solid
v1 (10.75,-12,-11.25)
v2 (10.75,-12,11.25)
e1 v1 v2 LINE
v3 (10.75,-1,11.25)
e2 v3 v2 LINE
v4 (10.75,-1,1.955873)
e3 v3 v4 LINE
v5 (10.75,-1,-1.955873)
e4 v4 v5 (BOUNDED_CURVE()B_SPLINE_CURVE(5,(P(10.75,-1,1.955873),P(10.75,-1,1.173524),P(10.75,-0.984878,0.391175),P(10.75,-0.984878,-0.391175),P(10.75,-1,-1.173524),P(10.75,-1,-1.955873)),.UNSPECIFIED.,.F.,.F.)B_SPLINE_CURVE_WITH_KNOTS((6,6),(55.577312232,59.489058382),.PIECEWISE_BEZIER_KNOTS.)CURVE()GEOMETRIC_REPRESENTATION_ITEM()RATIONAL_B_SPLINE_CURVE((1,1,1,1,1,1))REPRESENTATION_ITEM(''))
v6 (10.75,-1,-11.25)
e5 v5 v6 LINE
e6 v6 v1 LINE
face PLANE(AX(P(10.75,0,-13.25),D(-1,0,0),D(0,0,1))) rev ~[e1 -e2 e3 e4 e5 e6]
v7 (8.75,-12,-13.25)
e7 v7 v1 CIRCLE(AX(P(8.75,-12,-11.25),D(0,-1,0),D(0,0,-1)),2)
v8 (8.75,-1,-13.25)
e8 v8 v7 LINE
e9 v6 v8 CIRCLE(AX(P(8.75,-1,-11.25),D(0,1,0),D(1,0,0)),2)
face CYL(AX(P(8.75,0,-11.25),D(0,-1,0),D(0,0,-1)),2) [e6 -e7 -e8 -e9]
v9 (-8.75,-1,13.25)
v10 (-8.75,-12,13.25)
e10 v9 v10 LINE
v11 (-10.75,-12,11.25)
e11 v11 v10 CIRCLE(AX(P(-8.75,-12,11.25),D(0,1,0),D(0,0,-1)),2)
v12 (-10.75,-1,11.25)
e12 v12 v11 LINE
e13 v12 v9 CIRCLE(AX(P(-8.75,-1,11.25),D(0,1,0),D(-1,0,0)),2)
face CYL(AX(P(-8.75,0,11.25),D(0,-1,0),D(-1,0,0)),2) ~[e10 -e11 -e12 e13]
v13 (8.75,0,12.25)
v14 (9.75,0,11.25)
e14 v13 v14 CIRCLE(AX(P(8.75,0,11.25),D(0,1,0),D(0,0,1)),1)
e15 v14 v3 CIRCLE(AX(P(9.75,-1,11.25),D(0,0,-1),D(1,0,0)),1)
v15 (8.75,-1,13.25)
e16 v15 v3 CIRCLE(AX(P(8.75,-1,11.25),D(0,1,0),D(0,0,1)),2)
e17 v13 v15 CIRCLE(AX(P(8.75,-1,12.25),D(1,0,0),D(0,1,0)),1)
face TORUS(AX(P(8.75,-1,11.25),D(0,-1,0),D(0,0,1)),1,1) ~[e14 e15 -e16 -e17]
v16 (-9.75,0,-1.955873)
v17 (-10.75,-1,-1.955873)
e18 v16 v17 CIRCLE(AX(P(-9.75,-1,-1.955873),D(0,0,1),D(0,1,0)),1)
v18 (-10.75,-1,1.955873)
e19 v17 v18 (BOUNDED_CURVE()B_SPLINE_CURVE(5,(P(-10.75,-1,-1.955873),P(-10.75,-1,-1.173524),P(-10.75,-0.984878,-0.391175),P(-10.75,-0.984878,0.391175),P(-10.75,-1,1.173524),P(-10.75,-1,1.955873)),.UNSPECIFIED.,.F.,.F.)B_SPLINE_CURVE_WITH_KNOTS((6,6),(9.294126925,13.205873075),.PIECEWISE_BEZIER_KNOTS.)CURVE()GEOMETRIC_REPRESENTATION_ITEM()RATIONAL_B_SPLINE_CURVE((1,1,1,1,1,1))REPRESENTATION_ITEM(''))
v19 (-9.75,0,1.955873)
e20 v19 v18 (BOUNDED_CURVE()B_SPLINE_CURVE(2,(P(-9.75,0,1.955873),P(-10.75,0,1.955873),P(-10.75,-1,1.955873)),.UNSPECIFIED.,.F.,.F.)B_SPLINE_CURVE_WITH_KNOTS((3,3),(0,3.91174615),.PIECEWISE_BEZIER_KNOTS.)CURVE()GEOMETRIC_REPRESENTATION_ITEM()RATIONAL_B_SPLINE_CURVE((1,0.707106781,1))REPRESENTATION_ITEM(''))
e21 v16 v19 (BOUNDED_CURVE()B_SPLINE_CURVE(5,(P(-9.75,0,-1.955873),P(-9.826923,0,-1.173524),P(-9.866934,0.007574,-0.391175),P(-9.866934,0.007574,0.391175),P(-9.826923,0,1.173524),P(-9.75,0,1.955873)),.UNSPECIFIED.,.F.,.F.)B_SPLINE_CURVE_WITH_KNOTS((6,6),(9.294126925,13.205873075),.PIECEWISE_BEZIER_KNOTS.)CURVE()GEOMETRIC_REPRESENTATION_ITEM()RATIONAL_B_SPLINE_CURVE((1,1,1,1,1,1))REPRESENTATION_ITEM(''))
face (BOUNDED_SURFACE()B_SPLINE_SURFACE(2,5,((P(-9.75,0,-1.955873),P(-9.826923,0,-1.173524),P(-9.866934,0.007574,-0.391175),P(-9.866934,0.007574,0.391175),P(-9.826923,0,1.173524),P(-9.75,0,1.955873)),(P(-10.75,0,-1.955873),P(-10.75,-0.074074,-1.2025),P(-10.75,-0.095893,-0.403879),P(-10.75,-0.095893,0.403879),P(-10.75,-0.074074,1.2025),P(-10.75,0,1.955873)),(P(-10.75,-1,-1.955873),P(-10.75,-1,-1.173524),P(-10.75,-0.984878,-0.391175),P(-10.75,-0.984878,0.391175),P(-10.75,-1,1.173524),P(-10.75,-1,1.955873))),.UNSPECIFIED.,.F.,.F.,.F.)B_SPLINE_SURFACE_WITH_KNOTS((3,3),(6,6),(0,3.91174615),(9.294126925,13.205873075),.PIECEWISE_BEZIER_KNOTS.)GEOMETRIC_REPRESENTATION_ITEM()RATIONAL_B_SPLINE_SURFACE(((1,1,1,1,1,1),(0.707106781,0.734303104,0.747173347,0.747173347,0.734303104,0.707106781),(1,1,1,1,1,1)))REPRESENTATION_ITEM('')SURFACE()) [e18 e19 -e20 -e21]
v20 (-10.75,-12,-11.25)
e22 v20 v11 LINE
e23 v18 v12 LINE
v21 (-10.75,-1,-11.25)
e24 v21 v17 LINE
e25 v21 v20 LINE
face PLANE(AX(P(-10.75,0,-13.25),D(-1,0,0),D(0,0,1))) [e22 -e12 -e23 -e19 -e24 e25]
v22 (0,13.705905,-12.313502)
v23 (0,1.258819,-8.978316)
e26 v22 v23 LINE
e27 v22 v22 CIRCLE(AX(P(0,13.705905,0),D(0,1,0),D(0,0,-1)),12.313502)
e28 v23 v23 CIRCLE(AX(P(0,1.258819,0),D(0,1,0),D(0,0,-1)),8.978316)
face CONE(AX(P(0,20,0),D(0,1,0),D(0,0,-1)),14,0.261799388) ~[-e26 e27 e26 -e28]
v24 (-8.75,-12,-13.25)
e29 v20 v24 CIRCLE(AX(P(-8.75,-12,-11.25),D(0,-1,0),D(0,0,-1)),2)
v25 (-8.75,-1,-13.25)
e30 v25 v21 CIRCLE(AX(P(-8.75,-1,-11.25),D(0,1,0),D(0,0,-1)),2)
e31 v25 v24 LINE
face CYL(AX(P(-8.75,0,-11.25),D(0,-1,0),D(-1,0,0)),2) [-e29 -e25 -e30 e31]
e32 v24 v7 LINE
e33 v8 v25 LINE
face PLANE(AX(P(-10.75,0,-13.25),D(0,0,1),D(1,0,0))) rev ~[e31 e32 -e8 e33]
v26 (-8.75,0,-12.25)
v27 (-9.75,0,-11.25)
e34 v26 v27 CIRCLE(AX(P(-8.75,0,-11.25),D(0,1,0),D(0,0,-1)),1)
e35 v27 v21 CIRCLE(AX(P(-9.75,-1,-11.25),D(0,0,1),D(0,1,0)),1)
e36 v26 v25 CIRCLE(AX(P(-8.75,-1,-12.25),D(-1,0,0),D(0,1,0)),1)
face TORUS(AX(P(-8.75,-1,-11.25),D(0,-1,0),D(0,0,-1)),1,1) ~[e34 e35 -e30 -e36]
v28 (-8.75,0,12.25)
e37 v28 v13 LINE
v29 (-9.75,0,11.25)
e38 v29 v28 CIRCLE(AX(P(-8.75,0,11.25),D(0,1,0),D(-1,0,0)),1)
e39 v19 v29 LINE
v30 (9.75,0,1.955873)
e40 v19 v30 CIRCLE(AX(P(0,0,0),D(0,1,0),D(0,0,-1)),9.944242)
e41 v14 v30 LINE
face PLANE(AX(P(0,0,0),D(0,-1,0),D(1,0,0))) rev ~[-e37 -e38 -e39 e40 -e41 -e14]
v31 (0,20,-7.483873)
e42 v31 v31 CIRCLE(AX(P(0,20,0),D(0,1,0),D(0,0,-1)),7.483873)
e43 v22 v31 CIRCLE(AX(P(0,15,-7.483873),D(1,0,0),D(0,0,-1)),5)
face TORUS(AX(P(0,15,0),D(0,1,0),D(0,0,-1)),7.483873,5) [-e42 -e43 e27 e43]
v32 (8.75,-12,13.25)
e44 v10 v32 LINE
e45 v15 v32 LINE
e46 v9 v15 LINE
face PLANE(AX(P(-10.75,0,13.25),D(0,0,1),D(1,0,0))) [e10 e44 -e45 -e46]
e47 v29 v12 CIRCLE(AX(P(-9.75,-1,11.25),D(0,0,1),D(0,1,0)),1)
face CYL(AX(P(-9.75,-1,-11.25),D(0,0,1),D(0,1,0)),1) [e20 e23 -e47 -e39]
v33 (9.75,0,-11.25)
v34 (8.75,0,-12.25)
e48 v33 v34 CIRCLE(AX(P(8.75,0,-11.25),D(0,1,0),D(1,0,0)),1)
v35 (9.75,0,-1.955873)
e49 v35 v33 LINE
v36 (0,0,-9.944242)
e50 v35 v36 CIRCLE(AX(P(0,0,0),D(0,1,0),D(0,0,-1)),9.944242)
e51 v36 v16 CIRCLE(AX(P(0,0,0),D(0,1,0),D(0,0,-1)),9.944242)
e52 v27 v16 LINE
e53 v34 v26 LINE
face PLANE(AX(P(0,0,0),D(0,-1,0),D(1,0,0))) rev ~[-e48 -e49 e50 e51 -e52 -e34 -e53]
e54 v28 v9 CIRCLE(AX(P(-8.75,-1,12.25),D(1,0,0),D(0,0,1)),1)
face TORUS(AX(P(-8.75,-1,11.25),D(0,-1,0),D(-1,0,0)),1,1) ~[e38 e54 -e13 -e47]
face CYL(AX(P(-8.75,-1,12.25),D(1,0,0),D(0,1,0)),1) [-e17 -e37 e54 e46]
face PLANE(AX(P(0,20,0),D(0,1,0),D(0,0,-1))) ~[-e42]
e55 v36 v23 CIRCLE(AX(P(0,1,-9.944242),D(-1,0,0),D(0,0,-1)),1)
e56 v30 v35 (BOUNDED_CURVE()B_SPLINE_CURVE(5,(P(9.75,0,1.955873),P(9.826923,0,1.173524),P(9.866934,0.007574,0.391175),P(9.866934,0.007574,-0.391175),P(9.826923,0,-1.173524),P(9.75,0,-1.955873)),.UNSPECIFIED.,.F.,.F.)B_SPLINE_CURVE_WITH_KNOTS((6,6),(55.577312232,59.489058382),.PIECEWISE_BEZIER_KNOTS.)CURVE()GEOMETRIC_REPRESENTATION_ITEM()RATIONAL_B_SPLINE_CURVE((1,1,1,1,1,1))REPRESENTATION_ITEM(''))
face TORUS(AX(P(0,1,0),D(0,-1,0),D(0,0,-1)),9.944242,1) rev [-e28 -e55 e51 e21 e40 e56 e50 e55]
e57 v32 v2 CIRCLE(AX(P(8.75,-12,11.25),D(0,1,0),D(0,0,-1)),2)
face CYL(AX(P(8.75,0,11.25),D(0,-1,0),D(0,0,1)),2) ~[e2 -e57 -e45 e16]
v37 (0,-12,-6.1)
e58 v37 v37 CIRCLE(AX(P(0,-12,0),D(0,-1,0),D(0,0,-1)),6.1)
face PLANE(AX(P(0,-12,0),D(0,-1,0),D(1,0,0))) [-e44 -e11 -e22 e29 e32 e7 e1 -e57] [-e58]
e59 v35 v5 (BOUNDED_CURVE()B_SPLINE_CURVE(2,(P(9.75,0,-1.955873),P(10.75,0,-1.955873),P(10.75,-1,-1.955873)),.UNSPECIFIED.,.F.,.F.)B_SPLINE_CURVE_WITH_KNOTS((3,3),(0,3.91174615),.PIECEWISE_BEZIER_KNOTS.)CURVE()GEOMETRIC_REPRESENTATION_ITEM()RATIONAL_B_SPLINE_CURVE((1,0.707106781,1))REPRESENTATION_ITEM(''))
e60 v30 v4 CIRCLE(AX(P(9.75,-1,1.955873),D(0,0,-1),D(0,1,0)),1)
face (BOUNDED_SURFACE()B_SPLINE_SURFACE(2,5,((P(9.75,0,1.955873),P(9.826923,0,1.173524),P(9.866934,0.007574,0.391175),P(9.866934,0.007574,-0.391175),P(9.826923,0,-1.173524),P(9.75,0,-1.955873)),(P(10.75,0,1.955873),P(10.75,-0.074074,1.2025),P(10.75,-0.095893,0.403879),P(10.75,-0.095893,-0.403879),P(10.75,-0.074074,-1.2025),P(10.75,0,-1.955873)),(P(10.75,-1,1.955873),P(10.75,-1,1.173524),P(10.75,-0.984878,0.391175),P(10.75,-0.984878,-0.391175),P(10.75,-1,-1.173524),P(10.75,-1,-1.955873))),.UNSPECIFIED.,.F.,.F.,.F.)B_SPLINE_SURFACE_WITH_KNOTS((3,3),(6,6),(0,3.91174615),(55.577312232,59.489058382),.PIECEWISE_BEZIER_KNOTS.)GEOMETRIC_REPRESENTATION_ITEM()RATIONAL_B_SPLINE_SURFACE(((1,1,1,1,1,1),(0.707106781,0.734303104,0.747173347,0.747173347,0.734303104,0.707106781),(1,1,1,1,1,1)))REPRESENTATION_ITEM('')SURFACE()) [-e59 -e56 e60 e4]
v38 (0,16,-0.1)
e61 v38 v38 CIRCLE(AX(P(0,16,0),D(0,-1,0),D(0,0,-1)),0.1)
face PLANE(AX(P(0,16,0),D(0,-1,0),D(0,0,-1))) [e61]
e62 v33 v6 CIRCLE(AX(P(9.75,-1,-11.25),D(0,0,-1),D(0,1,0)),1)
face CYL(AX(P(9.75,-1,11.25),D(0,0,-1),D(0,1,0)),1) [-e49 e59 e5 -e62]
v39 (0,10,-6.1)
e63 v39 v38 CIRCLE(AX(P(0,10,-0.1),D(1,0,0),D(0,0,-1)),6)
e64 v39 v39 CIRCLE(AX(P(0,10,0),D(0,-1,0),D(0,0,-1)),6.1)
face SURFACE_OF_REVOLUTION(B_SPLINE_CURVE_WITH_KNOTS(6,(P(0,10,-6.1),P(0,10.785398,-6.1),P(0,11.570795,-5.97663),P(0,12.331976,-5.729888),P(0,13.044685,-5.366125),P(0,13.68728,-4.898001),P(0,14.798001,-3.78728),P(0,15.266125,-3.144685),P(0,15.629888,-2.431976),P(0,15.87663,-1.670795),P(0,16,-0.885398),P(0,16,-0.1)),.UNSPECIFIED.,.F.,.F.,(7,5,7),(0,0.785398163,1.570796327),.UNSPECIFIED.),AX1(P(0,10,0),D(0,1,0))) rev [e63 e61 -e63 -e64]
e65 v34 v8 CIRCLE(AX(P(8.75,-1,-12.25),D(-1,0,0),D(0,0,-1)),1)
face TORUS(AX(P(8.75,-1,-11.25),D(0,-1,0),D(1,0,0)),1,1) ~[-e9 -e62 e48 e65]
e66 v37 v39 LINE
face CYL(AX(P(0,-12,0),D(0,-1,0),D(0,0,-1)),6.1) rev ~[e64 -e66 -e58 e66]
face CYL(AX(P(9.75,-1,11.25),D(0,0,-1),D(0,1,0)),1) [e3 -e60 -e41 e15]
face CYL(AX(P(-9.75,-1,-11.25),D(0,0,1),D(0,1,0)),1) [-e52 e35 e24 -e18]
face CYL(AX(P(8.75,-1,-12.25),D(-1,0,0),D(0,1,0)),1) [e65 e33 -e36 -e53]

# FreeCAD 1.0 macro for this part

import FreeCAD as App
import Part
import Sketcher

V = App.Vector
Q = App.Units.Quantity


def edges_at(feature, points):
    """Names of the edges that pass closest to the given points."""
    edges = feature.Shape.Edges
    near = lambda p: min(range(len(edges)), key=lambda i: edges[i].distToShape(Part.Vertex(*p))[0])
    return sorted({f"Edge{near(p) + 1}" for p in points})


def add_polygon(sketch, points):
    """Adds a closed chain of lines whose ends are joined by coincident constraints."""
    first, n = sketch.GeometryCount, len(points)
    for a, b in zip(points, points[1:] + points[:1]):
        sketch.addGeometry(Part.LineSegment(App.Vector(*a, 0), App.Vector(*b, 0)), False)
    for i in range(n):
        sketch.addConstraint(Sketcher.Constraint("Coincident", first + i, 2, first + (i + 1) % n, 1))

doc = App.newDocument("Part")
params = doc.addObject("Spreadsheet::Sheet", "Params")
for row, (alias, value) in enumerate([
    ("sketch1_width", "14 mm"),
    ("sketch1_height", "20 mm"),
    ("revolution_angle", "360 deg"),
    ("sketch2_width", "21.5 mm"),
    ("sketch2_height", "26.5 mm"),
    ("pad1_length", "12 mm"),
    ("fillet_radius", "5 mm"),
    ("fillet2_radius", "2 mm"),
    ("fillet3_radius", "1 mm"),
    ("fillet4_radius", "1 mm"),
    ("sketch3_diameter", "12.2 mm"),
    ("pocket1_length", "28 mm"),
    ("fillet5_radius", "6 mm"),
], start=1):
    params.set(f"A{row}", alias)
    params.set(f"B{row}", "=" + value)
    params.setAlias(f"B{row}", alias)

body = doc.addObject("PartDesign::Body", "Body")

sketch1 = body.newObject("Sketcher::SketchObject", "Sketch")
sketch1.AttachmentSupport = (doc.getObject("XY_Plane"), [""])
sketch1.MapMode = "FlatFace"
add_polygon(sketch1, [(14, 20), (0, 20), (0, 0), (9, 0)])
sketch1.addConstraint(Sketcher.Constraint("Horizontal", 0))
sketch1.addConstraint(Sketcher.Constraint("Vertical", 1))
sketch1.addConstraint(Sketcher.Constraint("Horizontal", 2))
sketch1.addConstraint(Sketcher.Constraint("Coincident", 1, 2, -1, 1))
sketch1.addConstraint(Sketcher.Constraint("DistanceX", 0, 2, 0, 1, 14.0))
sketch1.addConstraint(Sketcher.Constraint("DistanceY", 1, 2, 1, 1, 20.0))
sketch1.addConstraint(Sketcher.Constraint("Angle", 3, Q("75 deg")))
sketch1.setExpression("Constraints[8]", "Params.sketch1_width")
sketch1.setExpression("Constraints[9]", "Params.sketch1_height")
revolution = body.newObject("PartDesign::Revolution", "Revolution")
revolution.Profile = sketch1
revolution.ReferenceAxis = (sketch1, ["V_Axis"])
revolution.setExpression("Angle", "Params.revolution_angle")

sketch2 = body.newObject("Sketcher::SketchObject", "Sketch001")
sketch2.AttachmentSupport = (doc.getObject("XZ_Plane"), [""])
sketch2.MapMode = "FlatFace"
add_polygon(sketch2, [(-11, 13), (-11, -13), (11, -13), (11, 13)])
sketch2.addConstraint(Sketcher.Constraint("Vertical", 0))
sketch2.addConstraint(Sketcher.Constraint("Horizontal", 1))
sketch2.addConstraint(Sketcher.Constraint("Vertical", 2))
sketch2.addConstraint(Sketcher.Constraint("Horizontal", 3))
sketch2.addConstraint(Sketcher.Constraint("Symmetric", 0, 2, 2, 2, -1, 1))
sketch2.addConstraint(Sketcher.Constraint("DistanceX", 1, 1, 1, 2, 21.5))
sketch2.addConstraint(Sketcher.Constraint("DistanceY", 0, 2, 0, 1, 26.5))
sketch2.setExpression("Constraints[9]", "Params.sketch2_width")
sketch2.setExpression("Constraints[10]", "Params.sketch2_height")
pad1 = body.newObject("PartDesign::Pad", "Pad")
pad1.Profile = sketch2
pad1.setExpression("Length", "Params.pad1_length")
doc.recompute()

fillet = body.newObject("PartDesign::Fillet", "Fillet")
fillet.Base = (pad1, edges_at(pad1, [(0, 20, 14)]))
fillet.setExpression("Radius", "Params.fillet_radius")
doc.recompute()

fillet2 = body.newObject("PartDesign::Fillet", "Fillet001")
fillet2.Base = (fillet, edges_at(fillet, [
    (10.75, -6, 13.25),
    (-10.75, -6, 13.25),
    (-10.75, -6, -13.25),
    (10.75, -6, -13.25),
]))
fillet2.setExpression("Radius", "Params.fillet2_radius")
doc.recompute()

fillet3 = body.newObject("PartDesign::Fillet", "Fillet002")
fillet3.Base = (fillet2, edges_at(fillet2, [(0, 0, 8.641)]))
fillet3.setExpression("Radius", "Params.fillet3_radius")
doc.recompute()

fillet4 = body.newObject("PartDesign::Fillet", "Fillet003")
fillet4.Base = (fillet3, edges_at(fillet3, [
    (-10.75, 0, 0),
    (10.75, 0, 0),
    (0, 0, -13.25),
    (0, 0, 13.25),
    (10.164, 0, -12.664),
    (-10.164, 0, -12.664),
    (10.164, 0, 12.664),
    (-10.164, 0, 12.664),
]))
fillet4.setExpression("Radius", "Params.fillet4_radius")

sketch3 = body.newObject("Sketcher::SketchObject", "Sketch002")
sketch3.AttachmentSupport = (doc.getObject("XZ_Plane"), [""])
sketch3.MapMode = "FlatFace"
sketch3.AttachmentOffset = App.Placement(V(0, 0, 12), App.Rotation())
sketch3.addGeometry(Part.Circle(V(0, 0, 0), V(0, 0, 1), 6), False)
sketch3.addConstraint(Sketcher.Constraint("Coincident", 0, 3, -1, 1))
sketch3.addConstraint(Sketcher.Constraint("Diameter", 0, 12.2))
sketch3.setExpression("Constraints[1]", "Params.sketch3_diameter")
pocket1 = body.newObject("PartDesign::Pocket", "Pocket")
pocket1.Profile = sketch3
pocket1.setExpression("Length", "Params.pocket1_length")
doc.recompute()

fillet5 = body.newObject("PartDesign::Fillet", "Fillet004")
fillet5.Base = (pocket1, edges_at(pocket1, [(0, 16, 6.1)]))
fillet5.setExpression("Radius", "Params.fillet5_radius")

doc.recompute()
